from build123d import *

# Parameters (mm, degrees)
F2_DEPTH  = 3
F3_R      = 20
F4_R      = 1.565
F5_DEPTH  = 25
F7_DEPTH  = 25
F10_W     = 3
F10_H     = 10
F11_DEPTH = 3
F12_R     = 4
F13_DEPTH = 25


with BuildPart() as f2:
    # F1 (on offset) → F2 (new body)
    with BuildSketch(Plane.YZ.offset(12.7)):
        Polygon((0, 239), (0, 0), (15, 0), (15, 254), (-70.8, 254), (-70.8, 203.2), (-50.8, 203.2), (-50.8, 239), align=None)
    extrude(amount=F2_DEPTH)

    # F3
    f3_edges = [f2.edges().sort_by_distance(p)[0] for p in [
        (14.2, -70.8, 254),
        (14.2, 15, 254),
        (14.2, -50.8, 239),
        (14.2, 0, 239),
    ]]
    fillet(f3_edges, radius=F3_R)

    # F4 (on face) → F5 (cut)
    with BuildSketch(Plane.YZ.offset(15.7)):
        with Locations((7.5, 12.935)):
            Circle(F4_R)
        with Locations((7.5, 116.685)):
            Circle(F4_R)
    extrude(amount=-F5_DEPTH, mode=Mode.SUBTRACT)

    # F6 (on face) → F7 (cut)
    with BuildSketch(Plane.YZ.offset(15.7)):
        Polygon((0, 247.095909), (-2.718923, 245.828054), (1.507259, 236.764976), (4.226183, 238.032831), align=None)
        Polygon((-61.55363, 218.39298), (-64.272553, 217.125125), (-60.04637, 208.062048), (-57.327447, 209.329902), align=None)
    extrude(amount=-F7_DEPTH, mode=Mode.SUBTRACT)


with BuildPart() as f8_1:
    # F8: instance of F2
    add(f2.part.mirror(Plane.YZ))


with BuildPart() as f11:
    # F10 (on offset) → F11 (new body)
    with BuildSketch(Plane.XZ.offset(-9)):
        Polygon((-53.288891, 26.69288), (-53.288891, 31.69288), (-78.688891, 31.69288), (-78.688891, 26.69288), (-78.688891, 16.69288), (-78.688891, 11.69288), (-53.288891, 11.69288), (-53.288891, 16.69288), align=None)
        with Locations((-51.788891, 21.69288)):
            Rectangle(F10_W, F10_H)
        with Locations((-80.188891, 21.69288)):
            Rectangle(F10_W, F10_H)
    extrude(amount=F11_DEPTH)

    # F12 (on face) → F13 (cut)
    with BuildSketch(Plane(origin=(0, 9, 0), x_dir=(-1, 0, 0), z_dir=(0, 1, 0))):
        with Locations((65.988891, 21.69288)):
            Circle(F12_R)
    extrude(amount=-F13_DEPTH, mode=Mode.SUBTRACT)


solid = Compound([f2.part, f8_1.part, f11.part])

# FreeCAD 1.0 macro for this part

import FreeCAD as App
import Part
import Sketcher

V = App.Vector
Q = App.Units.Quantity


def edges_at(feature, points):
    """Names of the edges that pass closest to the given points."""
    edges = feature.Shape.Edges
    near = lambda p: min(range(len(edges)), key=lambda i: edges[i].distToShape(Part.Vertex(*p))[0])
    return sorted({f"Edge{near(p) + 1}" for p in points})

doc = App.newDocument("Part")
params = doc.addObject("Spreadsheet::Sheet", "Params")
for row, (alias, value) in enumerate([
    ("sketch1_width", "15 mm"),
    ("sketch1_width2", "20 mm"),
    ("sketch1_height", "239 mm"),
    ("sketch1_height2", "254 mm"),
    ("sketch1_width3", "85.8 mm"),
    ("pad1_length", "3 mm"),
    ("fillet_radius", "20 mm"),
    ("sketch2_diameter", "3.13 mm"),
    ("pocket1_length", "25 mm"),
    ("sketch3_length", "3 mm"),
    ("sketch3_length2", "10 mm"),
    ("pocket2_length", "25 mm"),
    ("sketch4_width", "3 mm"),
    ("sketch4_height", "5 mm"),
    ("sketch4_height2", "10 mm"),
    ("sketch4_width2", "25.4 mm"),
    ("pad2_length", "3 mm"),
    ("sketch5_diameter", "8 mm"),
    ("pocket3_length", "25 mm"),
], start=1):
    params.set(f"A{row}", alias)
    params.set(f"B{row}", "=" + value)
    params.setAlias(f"B{row}", alias)

body = doc.addObject("PartDesign::Body", "Body")

# Sketch on YZ plane
sketch1 = body.newObject("Sketcher::SketchObject", "Sketch")
sketch1.AttachmentSupport = (doc.getObject("YZ_Plane"), [""])
sketch1.MapMode = "FlatFace"
sketch1.AttachmentOffset = App.Placement(V(0, 0, 12.7), App.Rotation())
sketch1.addGeometry(Part.LineSegment(V(0, 239, 0), V(0, 0, 0)), False)
sketch1.addGeometry(Part.LineSegment(V(0, 0, 0), V(15, 0, 0)), False)
sketch1.addGeometry(Part.LineSegment(V(15, 0, 0), V(15, 254, 0)), False)
sketch1.addGeometry(Part.LineSegment(V(15, 254, 0), V(-70.8, 254, 0)), False)
sketch1.addGeometry(Part.LineSegment(V(-70.8, 254, 0), V(-70.8, 203.2, 0)), False)
sketch1.addGeometry(Part.LineSegment(V(-70.8, 203.2, 0), V(-50.8, 203.2, 0)), False)
sketch1.addGeometry(Part.LineSegment(V(-50.8, 203.2, 0), V(-50.8, 239, 0)), False)
sketch1.addGeometry(Part.LineSegment(V(-50.8, 239, 0), V(0, 239, 0)), False)
sketch1.addConstraint(Sketcher.Constraint("Coincident", 0, 2, 1, 1))
sketch1.addConstraint(Sketcher.Constraint("Coincident", 1, 2, 2, 1))
sketch1.addConstraint(Sketcher.Constraint("Coincident", 2, 2, 3, 1))
sketch1.addConstraint(Sketcher.Constraint("Coincident", 3, 2, 4, 1))
sketch1.addConstraint(Sketcher.Constraint("Coincident", 4, 2, 5, 1))
sketch1.addConstraint(Sketcher.Constraint("Coincident", 5, 2, 6, 1))
sketch1.addConstraint(Sketcher.Constraint("Coincident", 6, 2, 7, 1))
sketch1.addConstraint(Sketcher.Constraint("Coincident", 7, 2, 0, 1))
sketch1.addConstraint(Sketcher.Constraint("Vertical", 0))
sketch1.addConstraint(Sketcher.Constraint("Horizontal", 1))
sketch1.addConstraint(Sketcher.Constraint("Vertical", 2))
sketch1.addConstraint(Sketcher.Constraint("Horizontal", 3))
sketch1.addConstraint(Sketcher.Constraint("Vertical", 4))
sketch1.addConstraint(Sketcher.Constraint("Horizontal", 5))
sketch1.addConstraint(Sketcher.Constraint("Vertical", 6))
sketch1.addConstraint(Sketcher.Constraint("Horizontal", 7))
sketch1.addConstraint(Sketcher.Constraint("Coincident", 0, 2, -1, 1))
sketch1.addConstraint(Sketcher.Constraint("Equal", 7, 4))
sketch1.addConstraint(Sketcher.Constraint("DistanceX", 1, 1, 1, 2, Q("15 mm")))
sketch1.addConstraint(Sketcher.Constraint("DistanceX", 5, 1, 5, 2, Q("20 mm")))
sketch1.addConstraint(Sketcher.Constraint("DistanceY", 0, 2, 0, 1, Q("239 mm")))
sketch1.addConstraint(Sketcher.Constraint("DistanceY", 2, 1, 2, 2, Q("254 mm")))
sketch1.addConstraint(Sketcher.Constraint("DistanceX", 3, 2, 3, 1, Q("85.8 mm")))
sketch1.setExpression("Constraints[18]", "Params.sketch1_width")
sketch1.setExpression("Constraints[19]", "Params.sketch1_width2")
sketch1.setExpression("Constraints[20]", "Params.sketch1_height")
sketch1.setExpression("Constraints[21]", "Params.sketch1_height2")
sketch1.setExpression("Constraints[22]", "Params.sketch1_width3")
pad1 = body.newObject("PartDesign::Pad", "Pad")
pad1.Profile = sketch1
pad1.setExpression("Length", "Params.pad1_length")
doc.recompute()

fillet = body.newObject("PartDesign::Fillet", "Fillet")
fillet.Base = (pad1, edges_at(pad1, [
    (14.2, -70.8, 254),
    (14.2, 15, 254),
    (14.2, -50.8, 239),
    (14.2, 0, 239),
]))
fillet.setExpression("Radius", "Params.fillet_radius")

# Sketch on YZ plane
sketch2 = body.newObject("Sketcher::SketchObject", "Sketch001")
sketch2.AttachmentSupport = (doc.getObject("YZ_Plane"), [""])
sketch2.MapMode = "FlatFace"
sketch2.AttachmentOffset = App.Placement(V(0, 0, 15.7), App.Rotation())
sketch2.addGeometry(Part.Circle(V(7.5, 12.935, 0), V(0, 0, 1), 1.565), False)
sketch2.addGeometry(Part.Circle(V(7.5, 116.685, 0), V(0, 0, 1), 1.565), False)
sketch2.addConstraint(Sketcher.Constraint("Equal", 0, 1))
sketch2.addConstraint(Sketcher.Constraint("Vertical", 0, 3, 1, 3))
sketch2.addConstraint(Sketcher.Constraint("Diameter", 0, Q("3.13 mm")))
sketch2.addConstraint(Sketcher.Constraint("DistanceX", -1, 1, 0, 3, Q("7.5 mm")))
sketch2.addConstraint(Sketcher.Constraint("DistanceY", 0, 3, 1, 3, Q("103.75 mm")))
sketch2.addConstraint(Sketcher.Constraint("DistanceY", -1, 1, 0, 3, Q("12.935 mm")))
sketch2.setExpression("Constraints[2]", "Params.sketch2_diameter")
pocket1 = body.newObject("PartDesign::Pocket", "Pocket")
pocket1.Profile = sketch2
pocket1.setExpression("Length", "Params.pocket1_length")

# Sketch on YZ plane
sketch3 = body.newObject("Sketcher::SketchObject", "Sketch002")
sketch3.AttachmentSupport = (doc.getObject("YZ_Plane"), [""])
sketch3.MapMode = "FlatFace"
sketch3.AttachmentOffset = App.Placement(V(0, 0, 15.7), App.Rotation())
sketch3.addGeometry(Part.LineSegment(V(0, 247.095909, 0), V(-2.718923, 245.828054, 0)), False)
sketch3.addGeometry(Part.LineSegment(V(-2.718923, 245.828054, 0), V(1.507259, 236.764976, 0)), False)
sketch3.addGeometry(Part.LineSegment(V(1.507259, 236.764976, 0), V(4.226183, 238.032831, 0)), False)
sketch3.addGeometry(Part.LineSegment(V(4.226183, 238.032831, 0), V(0, 247.095909, 0)), False)
sketch3.addGeometry(Part.LineSegment(V(-61.55363, 218.39298, 0), V(-64.272553, 217.125125, 0)), False)
sketch3.addGeometry(Part.LineSegment(V(-64.272553, 217.125125, 0), V(-60.04637, 208.062048, 0)), False)
sketch3.addGeometry(Part.LineSegment(V(-60.04637, 208.062048, 0), V(-57.327447, 209.329902, 0)), False)
sketch3.addGeometry(Part.LineSegment(V(-57.327447, 209.329902, 0), V(-61.55363, 218.39298, 0)), False)
sketch3.addConstraint(Sketcher.Constraint("Coincident", 0, 2, 1, 1))
sketch3.addConstraint(Sketcher.Constraint("Coincident", 1, 2, 2, 1))
sketch3.addConstraint(Sketcher.Constraint("Coincident", 2, 2, 3, 1))
sketch3.addConstraint(Sketcher.Constraint("Coincident", 3, 2, 0, 1))
sketch3.addConstraint(Sketcher.Constraint("Coincident", 4, 2, 5, 1))
sketch3.addConstraint(Sketcher.Constraint("Coincident", 5, 2, 6, 1))
sketch3.addConstraint(Sketcher.Constraint("Coincident", 6, 2, 7, 1))
sketch3.addConstraint(Sketcher.Constraint("Coincident", 7, 2, 4, 1))
sketch3.addConstraint(Sketcher.Constraint("PointOnObject", 3, 2, -2))
sketch3.addConstraint(Sketcher.Constraint("Perpendicular", 0, 1))
sketch3.addConstraint(Sketcher.Constraint("Perpendicular", 1, 2))
sketch3.addConstraint(Sketcher.Constraint("Perpendicular", 2, 3))
sketch3.addConstraint(Sketcher.Constraint("Perpendicular", 3, 4))
sketch3.addConstraint(Sketcher.Constraint("Perpendicular", 4, 5))
sketch3.addConstraint(Sketcher.Constraint("Perpendicular", 5, 6))
sketch3.addConstraint(Sketcher.Constraint("Perpendicular", 6, 7))
sketch3.addConstraint(Sketcher.Constraint("Equal", 2, 4))
sketch3.addConstraint(Sketcher.Constraint("Equal", 3, 5))
sketch3.addConstraint(Sketcher.Constraint("Angle", 0, Q("-154.999993 deg")))
sketch3.addConstraint(Sketcher.Constraint("Distance", 0, Q("3 mm")))
sketch3.addConstraint(Sketcher.Constraint("Distance", 1, Q("10 mm")))
sketch3.addConstraint(Sketcher.Constraint("DistanceY", -1, 1, 6, 2, Q("209.329902 mm")))
sketch3.addConstraint(Sketcher.Constraint("DistanceY", -1, 1, 2, 2, Q("238.032831 mm")))
sketch3.addConstraint(Sketcher.Constraint("DistanceX", 5, 2, -1, 1, Q("60.04637 mm")))
sketch3.setExpression("Constraints[19]", "Params.sketch3_length")
sketch3.setExpression("Constraints[20]", "Params.sketch3_length2")
pocket2 = body.newObject("PartDesign::Pocket", "Pocket001")
pocket2.Profile = sketch3
pocket2.setExpression("Length", "Params.pocket2_length")
body2 = doc.addObject("PartDesign::Body", "Body001")
doc.recompute()

mirroring = doc.addObject("Part::Mirroring", "Mirroring")
mirroring.Source = body
mirroring.Base = V(0, 0, 0)
mirroring.Normal = V(1, 0, 0)
body2.BaseFeature = mirroring
doc.recompute()
body3 = doc.addObject("PartDesign::Body", "Body002")

# Sketch on XZ plane
sketch4 = body3.newObject("Sketcher::SketchObject", "Sketch003")
sketch4.AttachmentSupport = (doc.getObject("XZ_Plane002"), [""])
sketch4.MapMode = "FlatFace"
sketch4.AttachmentOffset = App.Placement(V(0, 0, -9), App.Rotation())
sketch4.addGeometry(Part.LineSegment(V(-53.288891, 31.69288, 0), V(-78.688891, 31.69288, 0)), False)
sketch4.addGeometry(Part.LineSegment(V(-78.688891, 31.69288, 0), V(-78.688891, 26.69288, 0)), False)
sketch4.addGeometry(Part.LineSegment(V(-78.688891, 26.69288, 0), V(-81.688891, 26.69288, 0)), False)
sketch4.addGeometry(Part.LineSegment(V(-81.688891, 26.69288, 0), V(-81.688891, 16.69288, 0)), False)
sketch4.addGeometry(Part.LineSegment(V(-81.688891, 16.69288, 0), V(-78.688891, 16.69288, 0)), False)
sketch4.addGeometry(Part.LineSegment(V(-78.688891, 16.69288, 0), V(-78.688891, 11.69288, 0)), False)
sketch4.addGeometry(Part.LineSegment(V(-78.688891, 11.69288, 0), V(-53.288891, 11.69288, 0)), False)
sketch4.addGeometry(Part.LineSegment(V(-53.288891, 11.69288, 0), V(-53.288891, 16.69288, 0)), False)
sketch4.addGeometry(Part.LineSegment(V(-53.288891, 16.69288, 0), V(-50.288891, 16.69288, 0)), False)
sketch4.addGeometry(Part.LineSegment(V(-50.288891, 16.69288, 0), V(-50.288891, 26.69288, 0)), False)
sketch4.addGeometry(Part.LineSegment(V(-50.288891, 26.69288, 0), V(-53.288891, 26.69288, 0)), False)
sketch4.addGeometry(Part.LineSegment(V(-53.288891, 26.69288, 0), V(-53.288891, 31.69288, 0)), False)
sketch4.addConstraint(Sketcher.Constraint("Coincident", 0, 2, 1, 1))
sketch4.addConstraint(Sketcher.Constraint("Coincident", 1, 2, 2, 1))
sketch4.addConstraint(Sketcher.Constraint("Coincident", 2, 2, 3, 1))
sketch4.addConstraint(Sketcher.Constraint("Coincident", 3, 2, 4, 1))
sketch4.addConstraint(Sketcher.Constraint("Coincident", 4, 2, 5, 1))
sketch4.addConstraint(Sketcher.Constraint("Coincident", 5, 2, 6, 1))
sketch4.addConstraint(Sketcher.Constraint("Coincident", 6, 2, 7, 1))
sketch4.addConstraint(Sketcher.Constraint("Coincident", 7, 2, 8, 1))
sketch4.addConstraint(Sketcher.Constraint("Coincident", 8, 2, 9, 1))
sketch4.addConstraint(Sketcher.Constraint("Coincident", 9, 2, 10, 1))
sketch4.addConstraint(Sketcher.Constraint("Coincident", 10, 2, 11, 1))
sketch4.addConstraint(Sketcher.Constraint("Coincident", 11, 2, 0, 1))
sketch4.addConstraint(Sketcher.Constraint("Horizontal", 0))
sketch4.addConstraint(Sketcher.Constraint("Vertical", 1))
sketch4.addConstraint(Sketcher.Constraint("Horizontal", 2))
sketch4.addConstraint(Sketcher.Constraint("Vertical", 3))
sketch4.addConstraint(Sketcher.Constraint("Horizontal", 4))
sketch4.addConstraint(Sketcher.Constraint("Vertical", 5))
sketch4.addConstraint(Sketcher.Constraint("Horizontal", 6))
sketch4.addConstraint(Sketcher.Constraint("Vertical", 7))
sketch4.addConstraint(Sketcher.Constraint("Horizontal", 8))
sketch4.addConstraint(Sketcher.Constraint("Vertical", 9))
sketch4.addConstraint(Sketcher.Constraint("Horizontal", 10))
sketch4.addConstraint(Sketcher.Constraint("Vertical", 11))
sketch4.addConstraint(Sketcher.Constraint("Horizontal", 4, 2, 7, 2))
sketch4.addConstraint(Sketcher.Constraint("Horizontal", 2, 2, 9, 2))
sketch4.addConstraint(Sketcher.Constraint("Vertical", 1, 2, 4, 2))
sketch4.addConstraint(Sketcher.Constraint("Vertical", 7, 2, 10, 2))
sketch4.addConstraint(Sketcher.Constraint("Equal", 4, 8))
sketch4.addConstraint(Sketcher.Constraint("Equal", 1, 5))
sketch4.addConstraint(Sketcher.Constraint("DistanceX", 2, 2, 2, 1, Q("3 mm")))
sketch4.addConstraint(Sketcher.Constraint("DistanceY", 1, 2, 1, 1, Q("5 mm")))
sketch4.addConstraint(Sketcher.Constraint("DistanceY", 3, 2, 3, 1, Q("10 mm")))
sketch4.addConstraint(Sketcher.Constraint("DistanceX", 0, 2, 0, 1, Q("25.4 mm")))
sketch4.addConstraint(Sketcher.Constraint("DistanceX", 0, 2, -1, 1, Q("78.688891 mm")))
sketch4.addConstraint(Sketcher.Constraint("DistanceY", -1, 1, 0, 2, Q("31.69288 mm")))
sketch4.setExpression("Constraints[30]", "Params.sketch4_width")
sketch4.setExpression("Constraints[31]", "Params.sketch4_height")
sketch4.setExpression("Constraints[32]", "Params.sketch4_height2")
sketch4.setExpression("Constraints[33]", "Params.sketch4_width2")
pad2 = body3.newObject("PartDesign::Pad", "Pad001")
pad2.Profile = sketch4
pad2.setExpression("Length", "Params.pad2_length")

# Sketch on XZ plane
sketch5 = body3.newObject("Sketcher::SketchObject", "Sketch004")
sketch5.AttachmentSupport = (doc.getObject("XZ_Plane002"), [""])
sketch5.MapMode = "FlatFace"
sketch5.AttachmentOffset = App.Placement(V(0, 0, -9), App.Rotation())
sketch5.addGeometry(Part.Circle(V(-65.988891, 21.69288, 0), V(0, 0, 1), 4), False)
sketch5.addConstraint(Sketcher.Constraint("Diameter", 0, Q("8 mm")))
sketch5.addConstraint(Sketcher.Constraint("DistanceX", 0, 3, -1, 1, Q("65.988891 mm")))
sketch5.addConstraint(Sketcher.Constraint("DistanceY", -1, 1, 0, 3, Q("21.69288 mm")))
sketch5.setExpression("Constraints[0]", "Params.sketch5_diameter")
pocket3 = body3.newObject("PartDesign::Pocket", "Pocket002")
pocket3.Profile = sketch5
pocket3.setExpression("Length", "Params.pocket3_length")
pocket3.Reversed = True
mirroring.Visibility = False

doc.recompute()
